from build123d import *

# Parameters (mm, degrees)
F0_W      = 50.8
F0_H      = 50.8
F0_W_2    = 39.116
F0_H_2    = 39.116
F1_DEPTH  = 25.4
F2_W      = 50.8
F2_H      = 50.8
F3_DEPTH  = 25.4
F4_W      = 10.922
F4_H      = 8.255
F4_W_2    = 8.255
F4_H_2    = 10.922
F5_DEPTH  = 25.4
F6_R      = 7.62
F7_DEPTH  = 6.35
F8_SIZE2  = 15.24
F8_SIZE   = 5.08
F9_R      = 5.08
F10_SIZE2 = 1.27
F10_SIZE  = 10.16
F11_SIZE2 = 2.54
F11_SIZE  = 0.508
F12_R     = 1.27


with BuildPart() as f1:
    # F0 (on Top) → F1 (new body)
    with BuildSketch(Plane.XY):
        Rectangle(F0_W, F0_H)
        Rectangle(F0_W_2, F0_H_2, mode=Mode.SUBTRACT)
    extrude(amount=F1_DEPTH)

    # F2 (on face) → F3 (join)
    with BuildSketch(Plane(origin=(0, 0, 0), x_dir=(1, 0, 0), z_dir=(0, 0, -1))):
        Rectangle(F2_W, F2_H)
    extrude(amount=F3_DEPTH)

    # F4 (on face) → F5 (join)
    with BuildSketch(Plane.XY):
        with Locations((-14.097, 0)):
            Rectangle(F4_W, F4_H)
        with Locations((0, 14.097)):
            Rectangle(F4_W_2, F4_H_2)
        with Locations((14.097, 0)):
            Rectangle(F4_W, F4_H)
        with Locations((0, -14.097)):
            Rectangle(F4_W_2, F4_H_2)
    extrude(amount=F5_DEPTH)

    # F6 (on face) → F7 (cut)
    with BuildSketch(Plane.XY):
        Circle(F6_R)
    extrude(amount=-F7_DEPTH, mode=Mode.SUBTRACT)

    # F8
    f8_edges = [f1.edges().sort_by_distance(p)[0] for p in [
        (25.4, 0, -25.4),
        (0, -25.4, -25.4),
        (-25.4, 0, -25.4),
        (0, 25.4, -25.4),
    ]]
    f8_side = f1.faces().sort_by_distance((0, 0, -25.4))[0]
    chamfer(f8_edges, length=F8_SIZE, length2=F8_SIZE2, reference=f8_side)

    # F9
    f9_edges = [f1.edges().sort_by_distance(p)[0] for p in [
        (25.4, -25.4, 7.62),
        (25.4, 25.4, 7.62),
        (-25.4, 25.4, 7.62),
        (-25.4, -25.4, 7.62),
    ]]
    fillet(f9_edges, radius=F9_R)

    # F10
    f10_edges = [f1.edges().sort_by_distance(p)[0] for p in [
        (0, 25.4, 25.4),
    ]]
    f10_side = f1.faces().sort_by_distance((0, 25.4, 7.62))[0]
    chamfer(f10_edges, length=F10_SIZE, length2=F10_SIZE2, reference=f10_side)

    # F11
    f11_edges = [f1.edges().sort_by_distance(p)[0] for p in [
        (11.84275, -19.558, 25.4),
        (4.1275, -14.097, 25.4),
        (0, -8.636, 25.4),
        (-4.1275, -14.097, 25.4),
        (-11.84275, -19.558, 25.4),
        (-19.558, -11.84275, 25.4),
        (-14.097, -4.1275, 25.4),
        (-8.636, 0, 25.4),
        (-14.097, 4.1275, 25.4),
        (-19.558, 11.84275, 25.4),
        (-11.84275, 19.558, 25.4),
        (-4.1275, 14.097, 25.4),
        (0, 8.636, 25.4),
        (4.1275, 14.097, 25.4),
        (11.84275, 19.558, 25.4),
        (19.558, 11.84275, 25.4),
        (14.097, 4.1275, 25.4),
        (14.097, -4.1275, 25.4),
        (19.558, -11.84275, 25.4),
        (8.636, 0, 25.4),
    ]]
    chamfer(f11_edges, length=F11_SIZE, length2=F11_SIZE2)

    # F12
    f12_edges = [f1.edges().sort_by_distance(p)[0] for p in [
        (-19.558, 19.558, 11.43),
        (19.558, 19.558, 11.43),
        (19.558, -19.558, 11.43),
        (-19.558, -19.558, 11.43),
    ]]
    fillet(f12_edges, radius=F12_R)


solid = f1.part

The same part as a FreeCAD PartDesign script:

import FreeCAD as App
import Part
import Sketcher

V = App.Vector
Q = App.Units.Quantity


def edges_at(feature, points):
    """Names of the edges that pass closest to the given points."""
    edges = feature.Shape.Edges
    near = lambda p: min(range(len(edges)), key=lambda i: edges[i].distToShape(Part.Vertex(*p))[0])
    return sorted({f"Edge{near(p) + 1}" for p in points})

doc = App.newDocument("Part")
body = doc.addObject("PartDesign::Body", "Body")

# Sketch on XY plane
sketch1 = doc.addObject("Sketcher::SketchObject", "Sketch")
body.addObject(sketch1)
sketch1.AttachmentSupport = (doc.XY_Plane, [""])
sketch1.MapMode = "FlatFace"
sketch1.addGeometry([
    Part.LineSegment(V(-25, 25, 0), V(-25, -25, 0)),  # 0
    Part.LineSegment(V(-25, -25, 0), V(25, -25, 0)),  # 1
    Part.LineSegment(V(25, -25, 0), V(25, 25, 0)),  # 2
    Part.LineSegment(V(25, 25, 0), V(-25, 25, 0)),  # 3
    Part.LineSegment(V(20, -20, 0), V(-20, -20, 0)),  # 4
    Part.LineSegment(V(-20, -20, 0), V(-20, 20, 0)),  # 5
    Part.LineSegment(V(-20, 20, 0), V(20, 20, 0)),  # 6
    Part.LineSegment(V(20, 20, 0), V(20, -20, 0)),  # 7
], False)
sketch1.addConstraint([
    Sketcher.Constraint("Coincident", 0, 2, 1, 1),
    Sketcher.Constraint("Coincident", 1, 2, 2, 1),
    Sketcher.Constraint("Coincident", 2, 2, 3, 1),
    Sketcher.Constraint("Coincident", 3, 2, 0, 1),
    Sketcher.Constraint("Coincident", 4, 2, 5, 1),
    Sketcher.Constraint("Coincident", 5, 2, 6, 1),
    Sketcher.Constraint("Coincident", 6, 2, 7, 1),
    Sketcher.Constraint("Coincident", 7, 2, 4, 1),
    Sketcher.Constraint("Vertical", 0),
    Sketcher.Constraint("Horizontal", 1),
    Sketcher.Constraint("Vertical", 2),
    Sketcher.Constraint("Horizontal", 3),
    Sketcher.Constraint("Horizontal", 4),
    Sketcher.Constraint("Vertical", 5),
    Sketcher.Constraint("Horizontal", 6),
    Sketcher.Constraint("Vertical", 7),
    Sketcher.Constraint("Symmetric", 0, 2, 2, 2, -1, 1),
    Sketcher.Constraint("Symmetric", 4, 2, 6, 2, -1, 1),
    Sketcher.Constraint("Equal", 3, 0),
    Sketcher.Constraint("Equal", 6, 5),
    Sketcher.Constraint("DistanceX", 1, 1, 1, 2, Q("2 in")),
    Sketcher.Constraint("DistanceX", 4, 2, 4, 1, Q("1.54 in")),
])
pad1 = doc.addObject("PartDesign::Pad", "Pad")
body.addObject(pad1)
pad1.Profile = sketch1
pad1.Length = Q("1 in")

# Sketch on XY plane
sketch2 = doc.addObject("Sketcher::SketchObject", "Sketch001")
body.addObject(sketch2)
sketch2.AttachmentSupport = (doc.XY_Plane, [""])
sketch2.MapMode = "FlatFace"
sketch2.addGeometry([
    Part.LineSegment(V(-25, -25, 0), V(-25, 25, 0)),
    Part.LineSegment(V(-25, 25, 0), V(25, 25, 0)),
    Part.LineSegment(V(25, 25, 0), V(25, -25, 0)),
    Part.LineSegment(V(25, -25, 0), V(-25, -25, 0)),
], False)
sketch2.addConstraint([
    Sketcher.Constraint("Coincident", 0, 2, 1, 1),
    Sketcher.Constraint("Coincident", 1, 2, 2, 1),
    Sketcher.Constraint("Coincident", 2, 2, 3, 1),
    Sketcher.Constraint("Coincident", 3, 2, 0, 1),
    Sketcher.Constraint("Vertical", 0),
    Sketcher.Constraint("Horizontal", 1),
    Sketcher.Constraint("Vertical", 2),
    Sketcher.Constraint("Horizontal", 3),
    Sketcher.Constraint("Symmetric", 0, 2, 2, 2, -1, 1),
    Sketcher.Constraint("Equal", 3, 0),
    Sketcher.Constraint("DistanceX", 1, 1, 1, 2, Q("2 in")),
])
pad2 = doc.addObject("PartDesign::Pad", "Pad001")
body.addObject(pad2)
pad2.Profile = sketch2
pad2.Length = Q("1 in")
pad2.Reversed = True

# Sketch on XY plane
sketch3 = doc.addObject("Sketcher::SketchObject", "Sketch002")
body.addObject(sketch3)
sketch3.AttachmentSupport = (doc.XY_Plane, [""])
sketch3.MapMode = "FlatFace"
sketch3.addGeometry([
    Part.LineSegment(V(-20, 4, 0), V(-20, -4, 0)),  # 0
    Part.LineSegment(V(-20, -4, 0), V(-9, -4, 0)),  # 1
    Part.LineSegment(V(-9, -4, 0), V(-9, 4, 0)),  # 2
    Part.LineSegment(V(-9, 4, 0), V(-20, 4, 0)),  # 3
    Part.LineSegment(V(-4, 20, 0), V(-4, 9, 0)),  # 4
    Part.LineSegment(V(-4, 9, 0), V(4, 9, 0)),  # 5
    Part.LineSegment(V(4, 9, 0), V(4, 20, 0)),  # 6
    Part.LineSegment(V(4, 20, 0), V(-4, 20, 0)),  # 7
    Part.LineSegment(V(9, 4, 0), V(9, -4, 0)),  # 8
    Part.LineSegment(V(9, -4, 0), V(20, -4, 0)),  # 9
    Part.LineSegment(V(20, -4, 0), V(20, 4, 0)),  # 10
    Part.LineSegment(V(20, 4, 0), V(9, 4, 0)),  # 11
    Part.LineSegment(V(-4, -9, 0), V(-4, -20, 0)),  # 12
    Part.LineSegment(V(-4, -20, 0), V(4, -20, 0)),  # 13
    Part.LineSegment(V(4, -20, 0), V(4, -9, 0)),  # 14
    Part.LineSegment(V(4, -9, 0), V(-4, -9, 0)),  # 15
], False)
sketch3.addConstraint([
    Sketcher.Constraint("Coincident", 0, 2, 1, 1),
    Sketcher.Constraint("Coincident", 1, 2, 2, 1),
    Sketcher.Constraint("Coincident", 2, 2, 3, 1),
    Sketcher.Constraint("Coincident", 3, 2, 0, 1),
    Sketcher.Constraint("Coincident", 4, 2, 5, 1),
    Sketcher.Constraint("Coincident", 5, 2, 6, 1),
    Sketcher.Constraint("Coincident", 6, 2, 7, 1),
    Sketcher.Constraint("Coincident", 7, 2, 4, 1),
    Sketcher.Constraint("Coincident", 8, 2, 9, 1),
    Sketcher.Constraint("Coincident", 9, 2, 10, 1),
    Sketcher.Constraint("Coincident", 10, 2, 11, 1),
    Sketcher.Constraint("Coincident", 11, 2, 8, 1),
    Sketcher.Constraint("Coincident", 12, 2, 13, 1),
    Sketcher.Constraint("Coincident", 13, 2, 14, 1),
    Sketcher.Constraint("Coincident", 14, 2, 15, 1),
    Sketcher.Constraint("Coincident", 15, 2, 12, 1),
    Sketcher.Constraint("Vertical", 0),
    Sketcher.Constraint("Horizontal", 1),
    Sketcher.Constraint("Vertical", 2),
    Sketcher.Constraint("Horizontal", 3),
    Sketcher.Constraint("Vertical", 4),
    Sketcher.Constraint("Horizontal", 5),
    Sketcher.Constraint("Vertical", 6),
    Sketcher.Constraint("Horizontal", 7),
    Sketcher.Constraint("Vertical", 8),
    Sketcher.Constraint("Horizontal", 9),
    Sketcher.Constraint("Vertical", 10),
    Sketcher.Constraint("Horizontal", 11),
    Sketcher.Constraint("Vertical", 12),
    Sketcher.Constraint("Horizontal", 13),
    Sketcher.Constraint("Vertical", 14),
    Sketcher.Constraint("Horizontal", 15),
    Sketcher.Constraint("Symmetric", 2, 2, 8, 2, -1, 1),
    Sketcher.Constraint("Symmetric", 0, 2, 10, 2, -1, 1),
    Sketcher.Constraint("Symmetric", 6, 2, 12, 2, -1, 1),
    Sketcher.Constraint("Symmetric", 4, 2, 14, 2, -1, 1),
    Sketcher.Constraint("Horizontal", 1, 2, 8, 2),
    Sketcher.Constraint("Vertical", 7, 2, 12, 2),
    Sketcher.Constraint("Equal", 15, 0),
    Sketcher.Constraint("Equal", 11, 4),
    Sketcher.Constraint("DistanceX", 1, 1, 1, 2, Q("0.43 in")),
    Sketcher.Constraint("DistanceX", 5, 1, 5, 2, Q("0.325 in")),
    Sketcher.Constraint("DistanceX", 0, 2, -1, 1, Q("0.77 in")),
    Sketcher.Constraint("DistanceY", -1, 1, 4, 2, Q("0.34 in")),
])
pad3 = doc.addObject("PartDesign::Pad", "Pad002")
body.addObject(pad3)
pad3.Profile = sketch3
pad3.Length = Q("1 in")

# Sketch on XY plane
sketch4 = doc.addObject("Sketcher::SketchObject", "Sketch003")
body.addObject(sketch4)
sketch4.AttachmentSupport = (doc.XY_Plane, [""])
sketch4.MapMode = "FlatFace"
sketch4.addGeometry(Part.Circle(V(0, 0, 0), V(0, 0, 1), 8), False)
sketch4.addConstraint([
    Sketcher.Constraint("Coincident", 0, 3, -1, 1),
    Sketcher.Constraint("Diameter", 0, Q("0.6 in")),
])
pocket1 = doc.addObject("PartDesign::Pocket", "Pocket")
body.addObject(pocket1)
pocket1.Profile = sketch4
pocket1.Length = Q("0.25 in")
doc.recompute()

chamfer = doc.addObject("PartDesign::Chamfer", "Chamfer")
body.addObject(chamfer)
chamfer.Base = (pocket1, edges_at(pocket1, [
    (25.4, 0, -25.4),
    (0, -25.4, -25.4),
    (-25.4, 0, -25.4),
    (0, 25.4, -25.4),
]))
chamfer.ChamferType = "Two distances"
chamfer.Size = Q("0.2 in")
chamfer.Size2 = Q("0.6 in")
doc.recompute()

fillet = doc.addObject("PartDesign::Fillet", "Fillet")
body.addObject(fillet)
fillet.Base = (chamfer, edges_at(chamfer, [
    (25.4, -25.4, 7.62),
    (25.4, 25.4, 7.62),
    (-25.4, 25.4, 7.62),
    (-25.4, -25.4, 7.62),
]))
fillet.Radius = Q("0.2 in")
doc.recompute()

chamfer2 = doc.addObject("PartDesign::Chamfer", "Chamfer001")
body.addObject(chamfer2)
chamfer2.Base = (fillet, edges_at(fillet, [(0, 25.4, 25.4)]))
chamfer2.ChamferType = "Two distances"
chamfer2.Size = Q("0.4 in")
chamfer2.Size2 = Q("0.05 in")
chamfer2.FlipDirection = True
doc.recompute()

chamfer3 = doc.addObject("PartDesign::Chamfer", "Chamfer002")
body.addObject(chamfer3)
chamfer3.Base = (chamfer2, edges_at(chamfer2, [
    (11.843, -19.558, 25.4),
    (4.128, -14.097, 25.4),
    (0, -8.636, 25.4),
    (-4.128, -14.097, 25.4),
    (-11.843, -19.558, 25.4),
    (-19.558, -11.843, 25.4),
    (-14.097, -4.128, 25.4),
    (-8.636, 0, 25.4),
    (-14.097, 4.128, 25.4),
    (-19.558, 11.843, 25.4),
    (-11.843, 19.558, 25.4),
    (-4.128, 14.097, 25.4),
    (0, 8.636, 25.4),
    (4.128, 14.097, 25.4),
    (11.843, 19.558, 25.4),
    (19.558, 11.843, 25.4),
    (14.097, 4.128, 25.4),
    (14.097, -4.128, 25.4),
    (19.558, -11.843, 25.4),
    (8.636, 0, 25.4),
]))
chamfer3.ChamferType = "Two distances"
chamfer3.Size = Q("0.02 in")
chamfer3.Size2 = Q("0.1 in")
doc.recompute()

fillet2 = doc.addObject("PartDesign::Fillet", "Fillet001")
body.addObject(fillet2)
fillet2.Base = (chamfer3, edges_at(chamfer3, [
    (-19.558, 19.558, 11.43),
    (19.558, 19.558, 11.43),
    (19.558, -19.558, 11.43),
    (-19.558, -19.558, 11.43),
]))
fillet2.Radius = Q("0.05 in")

doc.recompute()
